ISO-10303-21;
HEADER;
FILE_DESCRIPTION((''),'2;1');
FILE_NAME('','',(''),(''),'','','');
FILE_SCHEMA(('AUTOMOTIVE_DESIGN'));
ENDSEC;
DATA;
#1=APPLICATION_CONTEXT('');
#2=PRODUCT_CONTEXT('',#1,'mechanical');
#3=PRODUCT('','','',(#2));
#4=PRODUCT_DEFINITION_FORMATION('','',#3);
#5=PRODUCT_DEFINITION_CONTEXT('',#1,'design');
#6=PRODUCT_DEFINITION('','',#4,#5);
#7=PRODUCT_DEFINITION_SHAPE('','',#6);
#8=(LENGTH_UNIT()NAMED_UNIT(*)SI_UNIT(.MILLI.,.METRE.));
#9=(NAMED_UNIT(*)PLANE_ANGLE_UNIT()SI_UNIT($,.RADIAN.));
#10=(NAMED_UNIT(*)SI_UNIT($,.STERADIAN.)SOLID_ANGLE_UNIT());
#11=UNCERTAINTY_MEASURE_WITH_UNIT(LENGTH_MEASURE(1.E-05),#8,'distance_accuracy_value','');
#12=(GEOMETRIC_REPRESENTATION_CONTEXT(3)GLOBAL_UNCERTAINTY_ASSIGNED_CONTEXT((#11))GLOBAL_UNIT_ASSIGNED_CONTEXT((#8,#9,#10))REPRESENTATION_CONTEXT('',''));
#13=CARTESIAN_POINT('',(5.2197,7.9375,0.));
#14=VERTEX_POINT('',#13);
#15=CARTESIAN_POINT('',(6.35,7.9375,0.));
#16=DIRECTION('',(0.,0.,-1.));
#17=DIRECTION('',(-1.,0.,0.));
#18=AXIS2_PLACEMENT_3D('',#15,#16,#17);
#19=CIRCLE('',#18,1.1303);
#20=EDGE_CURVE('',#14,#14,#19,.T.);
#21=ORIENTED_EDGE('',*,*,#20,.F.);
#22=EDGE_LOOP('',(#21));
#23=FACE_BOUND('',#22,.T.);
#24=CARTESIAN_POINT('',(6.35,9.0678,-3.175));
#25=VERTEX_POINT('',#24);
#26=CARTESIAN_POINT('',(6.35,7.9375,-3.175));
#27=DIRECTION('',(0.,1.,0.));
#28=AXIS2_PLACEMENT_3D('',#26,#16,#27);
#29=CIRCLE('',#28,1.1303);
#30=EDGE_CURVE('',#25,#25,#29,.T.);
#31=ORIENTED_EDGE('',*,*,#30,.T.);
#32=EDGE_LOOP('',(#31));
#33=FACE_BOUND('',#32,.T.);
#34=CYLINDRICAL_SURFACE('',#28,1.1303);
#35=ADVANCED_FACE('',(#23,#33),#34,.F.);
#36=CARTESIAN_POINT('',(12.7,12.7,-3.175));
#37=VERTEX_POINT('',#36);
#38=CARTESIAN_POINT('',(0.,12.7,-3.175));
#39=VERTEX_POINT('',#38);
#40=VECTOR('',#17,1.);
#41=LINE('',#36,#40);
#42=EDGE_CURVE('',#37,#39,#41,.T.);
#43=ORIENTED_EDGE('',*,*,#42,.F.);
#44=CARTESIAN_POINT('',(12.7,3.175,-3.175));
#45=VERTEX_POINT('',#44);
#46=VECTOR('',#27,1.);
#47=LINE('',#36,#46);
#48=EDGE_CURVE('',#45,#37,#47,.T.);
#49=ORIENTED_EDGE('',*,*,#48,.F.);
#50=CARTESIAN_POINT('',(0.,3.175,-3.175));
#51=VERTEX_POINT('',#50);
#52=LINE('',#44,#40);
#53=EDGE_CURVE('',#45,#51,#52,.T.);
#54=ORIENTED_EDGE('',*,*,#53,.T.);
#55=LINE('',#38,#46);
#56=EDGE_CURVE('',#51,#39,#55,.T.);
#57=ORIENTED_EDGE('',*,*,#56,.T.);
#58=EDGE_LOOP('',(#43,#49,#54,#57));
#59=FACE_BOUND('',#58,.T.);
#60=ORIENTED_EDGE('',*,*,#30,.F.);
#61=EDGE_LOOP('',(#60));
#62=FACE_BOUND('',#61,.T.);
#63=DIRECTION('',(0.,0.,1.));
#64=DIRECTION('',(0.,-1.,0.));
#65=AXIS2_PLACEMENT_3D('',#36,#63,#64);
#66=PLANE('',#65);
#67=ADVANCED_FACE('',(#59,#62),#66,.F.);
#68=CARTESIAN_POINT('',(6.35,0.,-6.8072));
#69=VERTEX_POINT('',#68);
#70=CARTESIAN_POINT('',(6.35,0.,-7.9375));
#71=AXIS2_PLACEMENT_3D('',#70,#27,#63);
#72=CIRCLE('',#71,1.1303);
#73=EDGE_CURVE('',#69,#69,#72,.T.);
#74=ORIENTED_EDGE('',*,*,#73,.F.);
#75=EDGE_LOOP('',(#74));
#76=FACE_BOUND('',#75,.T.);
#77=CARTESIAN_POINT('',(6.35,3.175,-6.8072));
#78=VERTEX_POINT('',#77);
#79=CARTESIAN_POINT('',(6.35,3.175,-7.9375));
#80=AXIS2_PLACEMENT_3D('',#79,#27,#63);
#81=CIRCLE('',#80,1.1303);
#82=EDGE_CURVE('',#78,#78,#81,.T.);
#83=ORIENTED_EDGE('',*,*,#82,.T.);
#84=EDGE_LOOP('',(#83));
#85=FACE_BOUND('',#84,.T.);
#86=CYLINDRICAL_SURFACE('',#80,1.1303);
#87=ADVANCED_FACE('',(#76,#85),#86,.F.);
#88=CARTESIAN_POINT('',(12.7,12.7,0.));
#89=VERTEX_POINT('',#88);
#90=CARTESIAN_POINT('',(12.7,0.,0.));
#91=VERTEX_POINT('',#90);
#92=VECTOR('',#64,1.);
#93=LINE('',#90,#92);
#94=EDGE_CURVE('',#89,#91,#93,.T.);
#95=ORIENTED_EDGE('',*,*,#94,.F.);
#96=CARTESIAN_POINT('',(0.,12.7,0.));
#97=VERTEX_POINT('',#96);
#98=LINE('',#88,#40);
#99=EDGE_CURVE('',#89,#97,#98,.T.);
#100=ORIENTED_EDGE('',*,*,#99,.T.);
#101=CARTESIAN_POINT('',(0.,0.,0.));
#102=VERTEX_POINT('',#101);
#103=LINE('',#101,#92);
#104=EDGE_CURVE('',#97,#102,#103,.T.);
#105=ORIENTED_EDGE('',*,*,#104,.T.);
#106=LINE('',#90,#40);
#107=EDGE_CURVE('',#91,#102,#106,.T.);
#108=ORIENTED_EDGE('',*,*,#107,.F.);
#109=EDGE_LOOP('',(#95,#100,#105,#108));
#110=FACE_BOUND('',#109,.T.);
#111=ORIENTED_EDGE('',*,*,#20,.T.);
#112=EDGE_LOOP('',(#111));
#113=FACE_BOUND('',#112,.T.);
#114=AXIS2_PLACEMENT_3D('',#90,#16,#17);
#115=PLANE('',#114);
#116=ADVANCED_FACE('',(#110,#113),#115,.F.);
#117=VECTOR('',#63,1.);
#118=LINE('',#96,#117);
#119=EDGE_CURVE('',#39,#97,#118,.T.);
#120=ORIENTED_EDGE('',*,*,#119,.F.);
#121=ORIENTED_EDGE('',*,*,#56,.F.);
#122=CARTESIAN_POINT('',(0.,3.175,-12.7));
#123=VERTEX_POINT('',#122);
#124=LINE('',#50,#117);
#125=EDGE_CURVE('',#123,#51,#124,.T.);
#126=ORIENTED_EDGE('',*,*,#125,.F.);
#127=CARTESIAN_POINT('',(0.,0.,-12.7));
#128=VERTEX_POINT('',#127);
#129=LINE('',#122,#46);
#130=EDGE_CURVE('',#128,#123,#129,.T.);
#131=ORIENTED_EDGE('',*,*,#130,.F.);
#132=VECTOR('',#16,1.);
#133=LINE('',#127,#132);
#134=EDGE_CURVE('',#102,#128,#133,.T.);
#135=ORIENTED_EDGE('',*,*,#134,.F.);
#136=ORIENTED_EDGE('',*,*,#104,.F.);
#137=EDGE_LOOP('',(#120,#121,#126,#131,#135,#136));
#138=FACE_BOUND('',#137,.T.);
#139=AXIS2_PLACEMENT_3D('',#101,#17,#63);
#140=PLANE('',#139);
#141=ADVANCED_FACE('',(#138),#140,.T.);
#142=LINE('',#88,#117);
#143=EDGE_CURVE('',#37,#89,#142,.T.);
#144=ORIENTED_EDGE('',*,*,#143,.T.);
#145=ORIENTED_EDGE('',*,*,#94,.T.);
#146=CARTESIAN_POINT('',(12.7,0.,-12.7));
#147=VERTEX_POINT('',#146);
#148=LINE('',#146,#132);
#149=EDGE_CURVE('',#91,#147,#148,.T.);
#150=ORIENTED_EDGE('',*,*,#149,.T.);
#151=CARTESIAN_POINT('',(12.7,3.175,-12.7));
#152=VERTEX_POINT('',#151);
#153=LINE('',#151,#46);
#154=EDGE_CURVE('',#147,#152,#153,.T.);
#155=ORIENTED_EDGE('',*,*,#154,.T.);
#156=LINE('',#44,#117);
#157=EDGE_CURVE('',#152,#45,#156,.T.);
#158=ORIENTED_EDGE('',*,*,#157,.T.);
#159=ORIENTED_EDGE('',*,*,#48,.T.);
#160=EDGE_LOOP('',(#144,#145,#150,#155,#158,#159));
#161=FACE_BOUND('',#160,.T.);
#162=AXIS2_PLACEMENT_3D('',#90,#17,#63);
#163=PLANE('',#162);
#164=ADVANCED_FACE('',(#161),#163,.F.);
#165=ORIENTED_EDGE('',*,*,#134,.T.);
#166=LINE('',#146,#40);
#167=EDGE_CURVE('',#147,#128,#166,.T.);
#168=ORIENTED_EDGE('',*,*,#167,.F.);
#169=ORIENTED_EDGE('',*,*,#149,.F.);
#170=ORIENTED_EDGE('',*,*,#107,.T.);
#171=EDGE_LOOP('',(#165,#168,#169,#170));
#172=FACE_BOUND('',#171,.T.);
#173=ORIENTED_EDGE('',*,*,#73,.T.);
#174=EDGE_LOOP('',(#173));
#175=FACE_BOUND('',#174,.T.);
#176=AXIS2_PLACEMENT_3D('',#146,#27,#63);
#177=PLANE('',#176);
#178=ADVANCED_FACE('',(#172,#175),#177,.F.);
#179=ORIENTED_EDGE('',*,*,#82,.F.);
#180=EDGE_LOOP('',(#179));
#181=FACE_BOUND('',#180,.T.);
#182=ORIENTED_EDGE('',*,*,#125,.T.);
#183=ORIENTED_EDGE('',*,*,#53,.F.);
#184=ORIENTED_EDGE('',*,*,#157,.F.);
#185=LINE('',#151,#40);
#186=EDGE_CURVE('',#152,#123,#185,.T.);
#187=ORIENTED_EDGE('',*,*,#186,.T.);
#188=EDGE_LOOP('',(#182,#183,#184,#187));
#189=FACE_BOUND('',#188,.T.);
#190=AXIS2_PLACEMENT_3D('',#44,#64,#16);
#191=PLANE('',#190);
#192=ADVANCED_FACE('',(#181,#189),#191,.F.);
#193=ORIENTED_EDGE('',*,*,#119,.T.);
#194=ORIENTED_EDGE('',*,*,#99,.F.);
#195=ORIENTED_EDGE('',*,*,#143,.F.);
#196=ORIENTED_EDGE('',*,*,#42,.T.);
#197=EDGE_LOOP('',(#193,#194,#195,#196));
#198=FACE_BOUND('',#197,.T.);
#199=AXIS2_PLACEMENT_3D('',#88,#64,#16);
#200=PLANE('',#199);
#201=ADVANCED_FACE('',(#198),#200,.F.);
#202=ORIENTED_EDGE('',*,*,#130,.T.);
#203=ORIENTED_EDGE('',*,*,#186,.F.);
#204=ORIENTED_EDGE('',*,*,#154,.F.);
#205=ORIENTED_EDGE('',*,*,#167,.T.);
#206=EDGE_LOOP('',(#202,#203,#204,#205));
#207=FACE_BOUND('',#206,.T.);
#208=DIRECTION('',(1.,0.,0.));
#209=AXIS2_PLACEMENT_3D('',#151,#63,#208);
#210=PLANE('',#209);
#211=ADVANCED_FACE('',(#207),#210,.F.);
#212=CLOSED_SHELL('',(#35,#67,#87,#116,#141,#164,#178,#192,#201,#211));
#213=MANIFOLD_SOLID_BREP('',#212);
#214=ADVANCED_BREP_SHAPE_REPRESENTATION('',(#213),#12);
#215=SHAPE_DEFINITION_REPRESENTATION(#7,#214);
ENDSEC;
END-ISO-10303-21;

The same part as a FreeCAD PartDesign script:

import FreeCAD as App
import Part
import Sketcher

V = App.Vector
Q = App.Units.Quantity


def add_polygon(sketch, points):
    """Adds a closed chain of lines whose ends are joined by coincident constraints."""
    first, n = sketch.GeometryCount, len(points)
    for a, b in zip(points, points[1:] + points[:1]):
        sketch.addGeometry(Part.LineSegment(App.Vector(*a, 0), App.Vector(*b, 0)), False)
    for i in range(n):
        sketch.addConstraint(Sketcher.Constraint("Coincident", first + i, 2, first + (i + 1) % n, 1))

doc = App.newDocument("Part")
body = doc.addObject("PartDesign::Body", "Body")

sketch1 = body.newObject("Sketcher::SketchObject", "Sketch")
sketch1.AttachmentSupport = (doc.getObject("YZ_Plane"), [""])
sketch1.MapMode = "FlatFace"
add_polygon(sketch1, [(12.7, 0), (0, 0), (0, -12.7), (3.2, -12.7), (3.2, -3.2), (12.7, -3.2)])
sketch1.addConstraint(Sketcher.Constraint("Horizontal", 0))
sketch1.addConstraint(Sketcher.Constraint("Vertical", 1))
sketch1.addConstraint(Sketcher.Constraint("Horizontal", 2))
sketch1.addConstraint(Sketcher.Constraint("Vertical", 3))
sketch1.addConstraint(Sketcher.Constraint("Horizontal", 4))
sketch1.addConstraint(Sketcher.Constraint("Vertical", 5))
sketch1.addConstraint(Sketcher.Constraint("Coincident", 0, 2, -1, 1))
sketch1.addConstraint(Sketcher.Constraint("Equal", 0, 1))
sketch1.addConstraint(Sketcher.Constraint("Equal", 4, 3))
sketch1.addConstraint(Sketcher.Constraint("DistanceX", 0, 2, 0, 1, Q("0.5 in")))
sketch1.addConstraint(Sketcher.Constraint("DistanceX", 2, 1, 2, 2, Q("0.125 in")))
pad1 = body.newObject("PartDesign::Pad", "Pad")
pad1.Profile = sketch1
pad1.Length = Q("0.5 in")

sketch2 = body.newObject("Sketcher::SketchObject", "Sketch001")
sketch2.AttachmentSupport = (doc.getObject("XY_Plane"), [""])
sketch2.MapMode = "FlatFace"
sketch2.AttachmentOffset = App.Placement(V(0, 0, -0.125 * 25.4), App.Rotation())
sketch2.addGeometry(Part.Circle(V(6.3, 7.9, 0), V(0, 0, 1), 1.1), False)
sketch2.addConstraint(Sketcher.Constraint("Diameter", 0, Q("0.089 in")))
sketch2.addConstraint(Sketcher.Constraint("DistanceX", -1, 1, 0, 3, Q("0.25 in")))
sketch2.addConstraint(Sketcher.Constraint("DistanceY", -1, 1, 0, 3, Q("0.3125 in")))
doc.recompute()
hole = body.newObject("PartDesign::Hole", "Hole")
hole.Profile = sketch2
hole.ThreadType = "None"
hole.Diameter = Q("0.089 in")
hole.DepthType = "Dimension"
hole.Depth = Q("1 in")
hole.DrillPoint = "Angled"
hole.DrillPointAngle = 118
hole.Reversed = True

sketch3 = body.newObject("Sketcher::SketchObject", "Sketch002")
sketch3.AttachmentSupport = (doc.getObject("XZ_Plane"), [""])
sketch3.MapMode = "FlatFace"
sketch3.AttachmentOffset = App.Placement(V(0, 0, -0.125 * 25.4), App.Rotation())
sketch3.addGeometry(Part.Circle(V(6.3, -7.9, 0), V(0, 0, 1), 1.1), False)
sketch3.addConstraint(Sketcher.Constraint("Diameter", 0, Q("0.089 in")))
sketch3.addConstraint(Sketcher.Constraint("DistanceX", -1, 1, 0, 3, Q("0.25 in")))
sketch3.addConstraint(Sketcher.Constraint("DistanceY", 0, 3, -1, 1, Q("0.3125 in")))
doc.recompute()
hole2 = body.newObject("PartDesign::Hole", "Hole001")
hole2.Profile = sketch3
hole2.ThreadType = "None"
hole2.Diameter = Q("0.089 in")
hole2.DepthType = "Dimension"
hole2.Depth = Q("1 in")
hole2.DrillPoint = "Angled"
hole2.DrillPointAngle = 118
hole2.Reversed = True

doc.recompute()
